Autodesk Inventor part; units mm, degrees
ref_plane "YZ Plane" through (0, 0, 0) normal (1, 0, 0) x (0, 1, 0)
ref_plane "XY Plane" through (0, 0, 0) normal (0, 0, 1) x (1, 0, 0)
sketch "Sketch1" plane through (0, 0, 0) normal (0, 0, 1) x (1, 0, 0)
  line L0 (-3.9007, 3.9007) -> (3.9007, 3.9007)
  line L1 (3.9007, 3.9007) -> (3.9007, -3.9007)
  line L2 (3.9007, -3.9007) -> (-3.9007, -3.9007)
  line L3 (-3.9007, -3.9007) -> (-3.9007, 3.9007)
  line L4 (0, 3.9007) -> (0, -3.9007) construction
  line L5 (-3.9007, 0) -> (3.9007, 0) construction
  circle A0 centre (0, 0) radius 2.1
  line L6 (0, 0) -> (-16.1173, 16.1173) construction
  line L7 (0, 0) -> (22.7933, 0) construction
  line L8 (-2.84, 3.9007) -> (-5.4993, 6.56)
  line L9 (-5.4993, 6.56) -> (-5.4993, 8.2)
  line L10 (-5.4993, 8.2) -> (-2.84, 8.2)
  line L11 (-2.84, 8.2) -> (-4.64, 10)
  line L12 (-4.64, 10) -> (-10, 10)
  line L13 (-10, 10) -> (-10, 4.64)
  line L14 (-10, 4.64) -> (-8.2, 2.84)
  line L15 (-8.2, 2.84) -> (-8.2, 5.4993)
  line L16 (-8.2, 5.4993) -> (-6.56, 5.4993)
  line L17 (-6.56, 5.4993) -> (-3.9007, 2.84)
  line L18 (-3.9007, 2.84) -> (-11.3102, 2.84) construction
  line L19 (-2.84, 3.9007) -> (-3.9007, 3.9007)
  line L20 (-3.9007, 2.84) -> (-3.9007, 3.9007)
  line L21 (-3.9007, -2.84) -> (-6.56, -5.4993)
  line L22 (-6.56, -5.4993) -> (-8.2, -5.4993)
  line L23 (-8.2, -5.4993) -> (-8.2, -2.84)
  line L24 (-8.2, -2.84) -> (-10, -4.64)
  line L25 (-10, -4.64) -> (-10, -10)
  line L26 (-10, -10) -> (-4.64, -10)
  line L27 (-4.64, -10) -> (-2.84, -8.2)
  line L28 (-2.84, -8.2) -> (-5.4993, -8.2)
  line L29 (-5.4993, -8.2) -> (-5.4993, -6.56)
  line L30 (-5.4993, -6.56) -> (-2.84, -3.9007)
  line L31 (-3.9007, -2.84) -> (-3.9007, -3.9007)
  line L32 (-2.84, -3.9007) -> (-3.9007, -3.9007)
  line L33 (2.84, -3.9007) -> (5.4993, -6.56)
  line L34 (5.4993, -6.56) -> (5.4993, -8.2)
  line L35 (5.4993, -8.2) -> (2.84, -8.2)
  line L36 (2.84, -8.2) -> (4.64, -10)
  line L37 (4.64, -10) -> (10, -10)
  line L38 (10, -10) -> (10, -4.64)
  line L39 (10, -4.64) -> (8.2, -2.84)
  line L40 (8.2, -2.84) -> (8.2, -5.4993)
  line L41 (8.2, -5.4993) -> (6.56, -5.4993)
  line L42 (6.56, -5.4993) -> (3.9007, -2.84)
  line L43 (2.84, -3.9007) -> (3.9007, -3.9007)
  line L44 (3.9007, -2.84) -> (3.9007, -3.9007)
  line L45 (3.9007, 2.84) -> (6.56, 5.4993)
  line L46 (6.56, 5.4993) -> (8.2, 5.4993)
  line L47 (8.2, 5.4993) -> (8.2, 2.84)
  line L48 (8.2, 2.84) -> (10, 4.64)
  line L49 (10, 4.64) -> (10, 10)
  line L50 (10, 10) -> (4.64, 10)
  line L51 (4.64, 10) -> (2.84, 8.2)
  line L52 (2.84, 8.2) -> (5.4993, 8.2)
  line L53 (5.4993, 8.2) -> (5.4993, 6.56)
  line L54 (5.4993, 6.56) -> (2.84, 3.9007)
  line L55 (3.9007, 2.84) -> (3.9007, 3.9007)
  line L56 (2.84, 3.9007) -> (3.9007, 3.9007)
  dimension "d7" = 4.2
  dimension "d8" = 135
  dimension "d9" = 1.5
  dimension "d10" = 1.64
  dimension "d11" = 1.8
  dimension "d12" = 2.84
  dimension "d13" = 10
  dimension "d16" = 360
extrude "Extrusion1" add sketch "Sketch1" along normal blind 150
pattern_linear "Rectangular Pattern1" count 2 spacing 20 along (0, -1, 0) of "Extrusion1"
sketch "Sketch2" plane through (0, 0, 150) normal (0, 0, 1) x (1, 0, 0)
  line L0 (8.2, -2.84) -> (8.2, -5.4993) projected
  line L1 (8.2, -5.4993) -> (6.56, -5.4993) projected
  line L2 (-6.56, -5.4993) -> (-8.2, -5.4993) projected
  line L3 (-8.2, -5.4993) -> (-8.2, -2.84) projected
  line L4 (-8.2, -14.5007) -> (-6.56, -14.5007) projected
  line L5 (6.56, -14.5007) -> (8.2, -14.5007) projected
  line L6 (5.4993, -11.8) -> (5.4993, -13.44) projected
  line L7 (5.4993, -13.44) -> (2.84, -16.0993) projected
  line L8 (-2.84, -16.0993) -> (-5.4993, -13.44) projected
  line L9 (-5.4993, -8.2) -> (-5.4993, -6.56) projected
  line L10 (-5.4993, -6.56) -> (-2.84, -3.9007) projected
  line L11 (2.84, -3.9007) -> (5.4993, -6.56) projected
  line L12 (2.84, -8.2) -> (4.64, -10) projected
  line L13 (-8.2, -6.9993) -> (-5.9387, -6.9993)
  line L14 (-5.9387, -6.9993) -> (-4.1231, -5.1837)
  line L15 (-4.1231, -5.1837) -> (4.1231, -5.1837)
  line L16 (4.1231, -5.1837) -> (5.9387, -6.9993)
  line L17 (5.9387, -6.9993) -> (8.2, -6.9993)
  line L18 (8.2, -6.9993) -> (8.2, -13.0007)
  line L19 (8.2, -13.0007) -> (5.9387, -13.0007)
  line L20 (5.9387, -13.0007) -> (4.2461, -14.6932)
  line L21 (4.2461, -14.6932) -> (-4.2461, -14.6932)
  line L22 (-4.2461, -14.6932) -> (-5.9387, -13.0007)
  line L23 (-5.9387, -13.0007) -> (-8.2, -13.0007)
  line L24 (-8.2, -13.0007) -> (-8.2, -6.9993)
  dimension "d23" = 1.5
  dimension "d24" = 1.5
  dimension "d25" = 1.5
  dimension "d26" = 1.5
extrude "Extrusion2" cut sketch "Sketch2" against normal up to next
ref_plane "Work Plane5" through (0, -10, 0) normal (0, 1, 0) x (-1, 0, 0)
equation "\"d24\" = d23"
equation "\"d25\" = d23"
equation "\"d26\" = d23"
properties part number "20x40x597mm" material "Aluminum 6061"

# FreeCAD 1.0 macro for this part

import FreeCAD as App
import Part
import Sketcher

V = App.Vector

doc = App.newDocument("Part")
body = doc.addObject("PartDesign::Body", "Body")

# Sketch on XY plane
sketch1 = doc.addObject("Sketcher::SketchObject", "Sketch")
body.addObject(sketch1)
sketch1.AttachmentSupport = (doc.XY_Plane, [""])
sketch1.MapMode = "FlatFace"
sketch1.addGeometry([
    Part.LineSegment(V(-6.6, 5.5, 0), V(-3.9, 2.8, 0)),  # 0
    Part.LineSegment(V(-3.9, 2.8, 0), V(-3.9, -2.8, 0)),  # 1
    Part.LineSegment(V(-3.9, -2.8, 0), V(-6.6, -5.5, 0)),  # 2
    Part.LineSegment(V(-6.6, -5.5, 0), V(-8.2, -5.5, 0)),  # 3
    Part.LineSegment(V(-8.2, -5.5, 0), V(-8.2, -2.8, 0)),  # 4
    Part.LineSegment(V(-8.2, -2.8, 0), V(-10, -4.6, 0)),  # 5
    Part.LineSegment(V(-10, -4.6, 0), V(-10, -10, 0)),  # 6
    Part.LineSegment(V(-10, -10, 0), V(-4.6, -10, 0)),  # 7
    Part.LineSegment(V(-4.6, -10, 0), V(-2.8, -8.2, 0)),  # 8
    Part.LineSegment(V(-2.8, -8.2, 0), V(-5.5, -8.2, 0)),  # 9
    Part.LineSegment(V(-5.5, -8.2, 0), V(-5.5, -6.6, 0)),  # 10
    Part.LineSegment(V(-5.5, -6.6, 0), V(-2.8, -3.9, 0)),  # 11
    Part.LineSegment(V(-2.8, -3.9, 0), V(2.8, -3.9, 0)),  # 12
    Part.LineSegment(V(2.8, -3.9, 0), V(5.5, -6.6, 0)),  # 13
    Part.LineSegment(V(5.5, -6.6, 0), V(5.5, -8.2, 0)),  # 14
    Part.LineSegment(V(5.5, -8.2, 0), V(2.8, -8.2, 0)),  # 15
    Part.LineSegment(V(2.8, -8.2, 0), V(4.6, -10, 0)),  # 16
    Part.LineSegment(V(4.6, -10, 0), V(10, -10, 0)),  # 17
    Part.LineSegment(V(10, -10, 0), V(10, -4.6, 0)),  # 18
    Part.LineSegment(V(10, -4.6, 0), V(8.2, -2.8, 0)),  # 19
    Part.LineSegment(V(8.2, -2.8, 0), V(8.2, -5.5, 0)),  # 20
    Part.LineSegment(V(8.2, -5.5, 0), V(6.6, -5.5, 0)),  # 21
    Part.LineSegment(V(6.6, -5.5, 0), V(3.9, -2.8, 0)),  # 22
    Part.LineSegment(V(3.9, -2.8, 0), V(3.9, 2.8, 0)),  # 23
    Part.LineSegment(V(3.9, 2.8, 0), V(6.6, 5.5, 0)),  # 24
    Part.LineSegment(V(6.6, 5.5, 0), V(8.2, 5.5, 0)),  # 25
    Part.LineSegment(V(8.2, 5.5, 0), V(8.2, 2.8, 0)),  # 26
    Part.LineSegment(V(8.2, 2.8, 0), V(10, 4.6, 0)),  # 27
    Part.LineSegment(V(10, 4.6, 0), V(10, 10, 0)),  # 28
    Part.LineSegment(V(10, 10, 0), V(4.6, 10, 0)),  # 29
    Part.LineSegment(V(4.6, 10, 0), V(2.8, 8.2, 0)),  # 30
    Part.LineSegment(V(2.8, 8.2, 0), V(5.5, 8.2, 0)),  # 31
    Part.LineSegment(V(5.5, 8.2, 0), V(5.5, 6.6, 0)),  # 32
    Part.LineSegment(V(5.5, 6.6, 0), V(2.8, 3.9, 0)),  # 33
    Part.LineSegment(V(2.8, 3.9, 0), V(-2.8, 3.9, 0)),  # 34
    Part.LineSegment(V(-2.8, 3.9, 0), V(-5.5, 6.6, 0)),  # 35
    Part.LineSegment(V(-5.5, 6.6, 0), V(-5.5, 8.2, 0)),  # 36
    Part.LineSegment(V(-5.5, 8.2, 0), V(-2.8, 8.2, 0)),  # 37
    Part.LineSegment(V(-2.8, 8.2, 0), V(-4.6, 10, 0)),  # 38
    Part.LineSegment(V(-4.6, 10, 0), V(-10, 10, 0)),  # 39
    Part.LineSegment(V(-10, 10, 0), V(-10, 4.6, 0)),  # 40
    Part.LineSegment(V(-10, 4.6, 0), V(-8.2, 2.8, 0)),  # 41
    Part.LineSegment(V(-8.2, 2.8, 0), V(-8.2, 5.5, 0)),  # 42
    Part.LineSegment(V(-8.2, 5.5, 0), V(-6.6, 5.5, 0)),  # 43
    Part.Circle(V(0, 0, 0), V(0, 0, 1), 2.1),  # 44
], False)
sketch1.addConstraint([
    Sketcher.Constraint("Coincident", 0, 2, 1, 1),
    Sketcher.Constraint("Coincident", 1, 2, 2, 1),
    Sketcher.Constraint("Coincident", 2, 2, 3, 1),
    Sketcher.Constraint("Coincident", 3, 2, 4, 1),
    Sketcher.Constraint("Coincident", 4, 2, 5, 1),
    Sketcher.Constraint("Coincident", 5, 2, 6, 1),
    Sketcher.Constraint("Coincident", 6, 2, 7, 1),
    Sketcher.Constraint("Coincident", 7, 2, 8, 1),
    Sketcher.Constraint("Coincident", 8, 2, 9, 1),
    Sketcher.Constraint("Coincident", 9, 2, 10, 1),
    Sketcher.Constraint("Coincident", 10, 2, 11, 1),
    Sketcher.Constraint("Coincident", 11, 2, 12, 1),
    Sketcher.Constraint("Coincident", 12, 2, 13, 1),
    Sketcher.Constraint("Coincident", 13, 2, 14, 1),
    Sketcher.Constraint("Coincident", 14, 2, 15, 1),
    Sketcher.Constraint("Coincident", 15, 2, 16, 1),
    Sketcher.Constraint("Coincident", 16, 2, 17, 1),
    Sketcher.Constraint("Coincident", 17, 2, 18, 1),
    Sketcher.Constraint("Coincident", 18, 2, 19, 1),
    Sketcher.Constraint("Coincident", 19, 2, 20, 1),
    Sketcher.Constraint("Coincident", 20, 2, 21, 1),
    Sketcher.Constraint("Coincident", 21, 2, 22, 1),
    Sketcher.Constraint("Coincident", 22, 2, 23, 1),
    Sketcher.Constraint("Coincident", 23, 2, 24, 1),
    Sketcher.Constraint("Coincident", 24, 2, 25, 1),
    Sketcher.Constraint("Coincident", 25, 2, 26, 1),
    Sketcher.Constraint("Coincident", 26, 2, 27, 1),
    Sketcher.Constraint("Coincident", 27, 2, 28, 1),
    Sketcher.Constraint("Coincident", 28, 2, 29, 1),
    Sketcher.Constraint("Coincident", 29, 2, 30, 1),
    Sketcher.Constraint("Coincident", 30, 2, 31, 1),
    Sketcher.Constraint("Coincident", 31, 2, 32, 1),
    Sketcher.Constraint("Coincident", 32, 2, 33, 1),
    Sketcher.Constraint("Coincident", 33, 2, 34, 1),
    Sketcher.Constraint("Coincident", 34, 2, 35, 1),
    Sketcher.Constraint("Coincident", 35, 2, 36, 1),
    Sketcher.Constraint("Coincident", 36, 2, 37, 1),
    Sketcher.Constraint("Coincident", 37, 2, 38, 1),
    Sketcher.Constraint("Coincident", 38, 2, 39, 1),
    Sketcher.Constraint("Coincident", 39, 2, 40, 1),
    Sketcher.Constraint("Coincident", 40, 2, 41, 1),
    Sketcher.Constraint("Coincident", 41, 2, 42, 1),
    Sketcher.Constraint("Coincident", 42, 2, 43, 1),
    Sketcher.Constraint("Coincident", 43, 2, 0, 1),
    Sketcher.Constraint("Vertical", 1),
    Sketcher.Constraint("Horizontal", 3),
    Sketcher.Constraint("Vertical", 4),
    Sketcher.Constraint("Vertical", 6),
    Sketcher.Constraint("Horizontal", 7),
    Sketcher.Constraint("Horizontal", 9),
    Sketcher.Constraint("Vertical", 10),
    Sketcher.Constraint("Horizontal", 12),
    Sketcher.Constraint("Vertical", 14),
    Sketcher.Constraint("Horizontal", 15),
    Sketcher.Constraint("Horizontal", 17),
    Sketcher.Constraint("Vertical", 18),
    Sketcher.Constraint("Vertical", 20),
    Sketcher.Constraint("Horizontal", 21),
    Sketcher.Constraint("Vertical", 23),
    Sketcher.Constraint("Horizontal", 25),
    Sketcher.Constraint("Vertical", 26),
    Sketcher.Constraint("Vertical", 28),
    Sketcher.Constraint("Horizontal", 29),
    Sketcher.Constraint("Horizontal", 31),
    Sketcher.Constraint("Vertical", 32),
    Sketcher.Constraint("Horizontal", 34),
    Sketcher.Constraint("Vertical", 36),
    Sketcher.Constraint("Horizontal", 37),
    Sketcher.Constraint("Horizontal", 39),
    Sketcher.Constraint("Vertical", 40),
    Sketcher.Constraint("Vertical", 42),
    Sketcher.Constraint("Horizontal", 43),
    Sketcher.Constraint("Coincident", 44, 3, -1, 1),
    Sketcher.Constraint("Symmetric", 0, 2, 22, 2, -1, 1),
    Sketcher.Constraint("Symmetric", 2, 2, 24, 2, -1, 1),
    Sketcher.Constraint("Symmetric", 4, 2, 26, 2, -1, 1),
    Sketcher.Constraint("Symmetric", 5, 2, 27, 2, -1, 1),
    Sketcher.Constraint("Symmetric", 7, 2, 29, 2, -1, 1),
    Sketcher.Constraint("Symmetric", 8, 2, 30, 2, -1, 1),
    Sketcher.Constraint("Symmetric", 10, 2, 32, 2, -1, 1),
    Sketcher.Constraint("Symmetric", 11, 2, 33, 2, -1, 1),
    Sketcher.Constraint("Symmetric", 13, 2, 35, 2, -1, 1),
    Sketcher.Constraint("Symmetric", 15, 2, 37, 2, -1, 1),
    Sketcher.Constraint("Symmetric", 16, 2, 38, 2, -1, 1),
    Sketcher.Constraint("Symmetric", 18, 2, 40, 2, -1, 1),
    Sketcher.Constraint("Symmetric", 19, 2, 41, 2, -1, 1),
    Sketcher.Constraint("Symmetric", 21, 2, 43, 2, -1, 1),
    Sketcher.Constraint("Symmetric", 10, 2, 13, 2, -2),
    Sketcher.Constraint("Symmetric", 8, 2, 15, 2, -2),
    Sketcher.Constraint("Symmetric", 7, 2, 16, 2, -2),
    Sketcher.Constraint("Symmetric", 5, 2, 18, 2, -2),
    Sketcher.Constraint("Symmetric", 4, 2, 19, 2, -2),
    Sketcher.Constraint("Symmetric", 2, 2, 21, 2, -2),
    Sketcher.Constraint("Perpendicular", 0, 2),
    Sketcher.Constraint("Parallel", 2, 5),
    Sketcher.Constraint("Parallel", 5, 8),
    Sketcher.Constraint("Parallel", 8, 11),
    Sketcher.Constraint("Perpendicular", 11, 13),
    Sketcher.Constraint("Parallel", 13, 16),
    Sketcher.Constraint("Perpendicular", 22, 24),
    Sketcher.Constraint("Perpendicular", 33, 35),
    Sketcher.Constraint("Horizontal", 1, 2, 4, 2),
    Sketcher.Constraint("Vertical", 8, 2, 11, 2),
    Sketcher.Constraint("Equal", 34, 1),
    Sketcher.Constraint("Equal", 37, 4),
    Sketcher.Constraint("Equal", 39, 6),
    Sketcher.Constraint("Equal", 43, 10),
    Sketcher.Constraint("Equal", 5, 8),
    Sketcher.Constraint("Diameter", 44, 4.2),
    Sketcher.Constraint("DistanceX", 5, 2, -1, 1, 10.0),
    Sketcher.Constraint("DistanceX", 3, 2, 3, 1, 1.64),
    Sketcher.Constraint("DistanceX", 5, 2, 3, 2, 1.8),
    Sketcher.Constraint("DistanceY", -1, 1, 0, 2, 2.84),
    Sketcher.Constraint("DistanceX", 9, 2, 9, 1, 2.6593),
])
pad1 = doc.addObject("PartDesign::Pad", "Pad")
body.addObject(pad1)
pad1.Profile = sketch1
pad1.Length = 150
doc.recompute()

linearpattern = doc.addObject("PartDesign::LinearPattern", "LinearPattern")
body.addObject(linearpattern)
linearpattern.Originals = [pad1]
linearpattern.Direction = (doc.Y_Axis, [""])
linearpattern.Mode = "offset"
linearpattern.Offset = 20
linearpattern.Occurrences = 2
linearpattern.Reversed = True
body.Tip = linearpattern

# Sketch on XY plane
sketch2 = doc.addObject("Sketcher::SketchObject", "Sketch001")
body.addObject(sketch2)
sketch2.AttachmentSupport = (doc.XY_Plane, [""])
sketch2.MapMode = "FlatFace"
sketch2.AttachmentOffset = App.Placement(V(0, 0, 150), App.Rotation())
sketch2.addGeometry([
    Part.LineSegment(V(4.2, -14.7, 0), V(5.5, -13.4, 0)),  # 0
    Part.LineSegment(V(5.5, -13.4, 0), V(5.9, -13, 0)),  # 1
    Part.LineSegment(V(5.9, -13, 0), V(8.2, -13, 0)),  # 2
    Part.LineSegment(V(8.2, -13, 0), V(8.2, -7, 0)),  # 3
    Part.LineSegment(V(8.2, -7, 0), V(5.9, -7, 0)),  # 4
    Part.LineSegment(V(5.9, -7, 0), V(5.5, -6.6, 0)),  # 5
    Part.LineSegment(V(5.5, -6.6, 0), V(4.1, -5.2, 0)),  # 6
    Part.LineSegment(V(4.1, -5.2, 0), V(-4.1, -5.2, 0)),  # 7
    Part.LineSegment(V(-4.1, -5.2, 0), V(-5.5, -6.6, 0)),  # 8
    Part.LineSegment(V(-5.5, -6.6, 0), V(-5.9, -7, 0)),  # 9
    Part.LineSegment(V(-5.9, -7, 0), V(-8.2, -7, 0)),  # 10
    Part.LineSegment(V(-8.2, -7, 0), V(-8.2, -13, 0)),  # 11
    Part.LineSegment(V(-8.2, -13, 0), V(-5.9, -13, 0)),  # 12
    Part.LineSegment(V(-5.9, -13, 0), V(-5.5, -13.4, 0)),  # 13
    Part.LineSegment(V(-5.5, -13.4, 0), V(-4.2, -14.7, 0)),  # 14
    Part.LineSegment(V(-4.2, -14.7, 0), V(4.2, -14.7, 0)),  # 15
], False)
sketch2.addConstraint([
    Sketcher.Constraint("Coincident", 0, 2, 1, 1),
    Sketcher.Constraint("Coincident", 1, 2, 2, 1),
    Sketcher.Constraint("Coincident", 2, 2, 3, 1),
    Sketcher.Constraint("Coincident", 3, 2, 4, 1),
    Sketcher.Constraint("Coincident", 4, 2, 5, 1),
    Sketcher.Constraint("Coincident", 5, 2, 6, 1),
    Sketcher.Constraint("Coincident", 6, 2, 7, 1),
    Sketcher.Constraint("Coincident", 7, 2, 8, 1),
    Sketcher.Constraint("Coincident", 8, 2, 9, 1),
    Sketcher.Constraint("Coincident", 9, 2, 10, 1),
    Sketcher.Constraint("Coincident", 10, 2, 11, 1),
    Sketcher.Constraint("Coincident", 11, 2, 12, 1),
    Sketcher.Constraint("Coincident", 12, 2, 13, 1),
    Sketcher.Constraint("Coincident", 13, 2, 14, 1),
    Sketcher.Constraint("Coincident", 14, 2, 15, 1),
    Sketcher.Constraint("Coincident", 15, 2, 0, 1),
    Sketcher.Constraint("Horizontal", 2),
    Sketcher.Constraint("Vertical", 3),
    Sketcher.Constraint("Horizontal", 4),
    Sketcher.Constraint("Horizontal", 7),
    Sketcher.Constraint("Horizontal", 10),
    Sketcher.Constraint("Vertical", 11),
    Sketcher.Constraint("Horizontal", 12),
    Sketcher.Constraint("Horizontal", 15),
    Sketcher.Constraint("Symmetric", 5, 2, 8, 2, -2),
    Sketcher.Constraint("Symmetric", 4, 2, 9, 2, -2),
    Sketcher.Constraint("Symmetric", 2, 2, 11, 2, -2),
    Sketcher.Constraint("Symmetric", 0, 2, 13, 2, -2),
    Sketcher.Constraint("Parallel", 0, 1),
    Sketcher.Constraint("Perpendicular", 1, 5),
    Sketcher.Constraint("Parallel", 5, 6),
    Sketcher.Constraint("Perpendicular", 6, 8),
    Sketcher.Constraint("Parallel", 8, 9),
    Sketcher.Constraint("Perpendicular", 9, 13),
    Sketcher.Constraint("Parallel", 13, 14),
    Sketcher.Constraint("Vertical", 1, 2, 4, 2),
    Sketcher.Constraint("Vertical", 0, 2, 5, 2),
    Sketcher.Constraint("DistanceX", -1, 1, 2, 2, 8.2),
    Sketcher.Constraint("DistanceY", 0, 2, -1, 1, 13.44),
    Sketcher.Constraint("DistanceY", 5, 2, -1, 1, 6.56),
    Sketcher.Constraint("DistanceX", 2, 1, 2, 2, 2.2613),
    Sketcher.Constraint("DistanceX", 7, 2, 7, 1, 8.2462),
    Sketcher.Constraint("DistanceX", 15, 1, 15, 2, 8.4922),
    Sketcher.Constraint("DistanceY", 3, 1, 3, 2, 6.0014),
])
pocket1 = doc.addObject("PartDesign::Pocket", "Pocket")
body.addObject(pocket1)
pocket1.Profile = sketch2
pocket1.Length = 150

doc.recompute()
